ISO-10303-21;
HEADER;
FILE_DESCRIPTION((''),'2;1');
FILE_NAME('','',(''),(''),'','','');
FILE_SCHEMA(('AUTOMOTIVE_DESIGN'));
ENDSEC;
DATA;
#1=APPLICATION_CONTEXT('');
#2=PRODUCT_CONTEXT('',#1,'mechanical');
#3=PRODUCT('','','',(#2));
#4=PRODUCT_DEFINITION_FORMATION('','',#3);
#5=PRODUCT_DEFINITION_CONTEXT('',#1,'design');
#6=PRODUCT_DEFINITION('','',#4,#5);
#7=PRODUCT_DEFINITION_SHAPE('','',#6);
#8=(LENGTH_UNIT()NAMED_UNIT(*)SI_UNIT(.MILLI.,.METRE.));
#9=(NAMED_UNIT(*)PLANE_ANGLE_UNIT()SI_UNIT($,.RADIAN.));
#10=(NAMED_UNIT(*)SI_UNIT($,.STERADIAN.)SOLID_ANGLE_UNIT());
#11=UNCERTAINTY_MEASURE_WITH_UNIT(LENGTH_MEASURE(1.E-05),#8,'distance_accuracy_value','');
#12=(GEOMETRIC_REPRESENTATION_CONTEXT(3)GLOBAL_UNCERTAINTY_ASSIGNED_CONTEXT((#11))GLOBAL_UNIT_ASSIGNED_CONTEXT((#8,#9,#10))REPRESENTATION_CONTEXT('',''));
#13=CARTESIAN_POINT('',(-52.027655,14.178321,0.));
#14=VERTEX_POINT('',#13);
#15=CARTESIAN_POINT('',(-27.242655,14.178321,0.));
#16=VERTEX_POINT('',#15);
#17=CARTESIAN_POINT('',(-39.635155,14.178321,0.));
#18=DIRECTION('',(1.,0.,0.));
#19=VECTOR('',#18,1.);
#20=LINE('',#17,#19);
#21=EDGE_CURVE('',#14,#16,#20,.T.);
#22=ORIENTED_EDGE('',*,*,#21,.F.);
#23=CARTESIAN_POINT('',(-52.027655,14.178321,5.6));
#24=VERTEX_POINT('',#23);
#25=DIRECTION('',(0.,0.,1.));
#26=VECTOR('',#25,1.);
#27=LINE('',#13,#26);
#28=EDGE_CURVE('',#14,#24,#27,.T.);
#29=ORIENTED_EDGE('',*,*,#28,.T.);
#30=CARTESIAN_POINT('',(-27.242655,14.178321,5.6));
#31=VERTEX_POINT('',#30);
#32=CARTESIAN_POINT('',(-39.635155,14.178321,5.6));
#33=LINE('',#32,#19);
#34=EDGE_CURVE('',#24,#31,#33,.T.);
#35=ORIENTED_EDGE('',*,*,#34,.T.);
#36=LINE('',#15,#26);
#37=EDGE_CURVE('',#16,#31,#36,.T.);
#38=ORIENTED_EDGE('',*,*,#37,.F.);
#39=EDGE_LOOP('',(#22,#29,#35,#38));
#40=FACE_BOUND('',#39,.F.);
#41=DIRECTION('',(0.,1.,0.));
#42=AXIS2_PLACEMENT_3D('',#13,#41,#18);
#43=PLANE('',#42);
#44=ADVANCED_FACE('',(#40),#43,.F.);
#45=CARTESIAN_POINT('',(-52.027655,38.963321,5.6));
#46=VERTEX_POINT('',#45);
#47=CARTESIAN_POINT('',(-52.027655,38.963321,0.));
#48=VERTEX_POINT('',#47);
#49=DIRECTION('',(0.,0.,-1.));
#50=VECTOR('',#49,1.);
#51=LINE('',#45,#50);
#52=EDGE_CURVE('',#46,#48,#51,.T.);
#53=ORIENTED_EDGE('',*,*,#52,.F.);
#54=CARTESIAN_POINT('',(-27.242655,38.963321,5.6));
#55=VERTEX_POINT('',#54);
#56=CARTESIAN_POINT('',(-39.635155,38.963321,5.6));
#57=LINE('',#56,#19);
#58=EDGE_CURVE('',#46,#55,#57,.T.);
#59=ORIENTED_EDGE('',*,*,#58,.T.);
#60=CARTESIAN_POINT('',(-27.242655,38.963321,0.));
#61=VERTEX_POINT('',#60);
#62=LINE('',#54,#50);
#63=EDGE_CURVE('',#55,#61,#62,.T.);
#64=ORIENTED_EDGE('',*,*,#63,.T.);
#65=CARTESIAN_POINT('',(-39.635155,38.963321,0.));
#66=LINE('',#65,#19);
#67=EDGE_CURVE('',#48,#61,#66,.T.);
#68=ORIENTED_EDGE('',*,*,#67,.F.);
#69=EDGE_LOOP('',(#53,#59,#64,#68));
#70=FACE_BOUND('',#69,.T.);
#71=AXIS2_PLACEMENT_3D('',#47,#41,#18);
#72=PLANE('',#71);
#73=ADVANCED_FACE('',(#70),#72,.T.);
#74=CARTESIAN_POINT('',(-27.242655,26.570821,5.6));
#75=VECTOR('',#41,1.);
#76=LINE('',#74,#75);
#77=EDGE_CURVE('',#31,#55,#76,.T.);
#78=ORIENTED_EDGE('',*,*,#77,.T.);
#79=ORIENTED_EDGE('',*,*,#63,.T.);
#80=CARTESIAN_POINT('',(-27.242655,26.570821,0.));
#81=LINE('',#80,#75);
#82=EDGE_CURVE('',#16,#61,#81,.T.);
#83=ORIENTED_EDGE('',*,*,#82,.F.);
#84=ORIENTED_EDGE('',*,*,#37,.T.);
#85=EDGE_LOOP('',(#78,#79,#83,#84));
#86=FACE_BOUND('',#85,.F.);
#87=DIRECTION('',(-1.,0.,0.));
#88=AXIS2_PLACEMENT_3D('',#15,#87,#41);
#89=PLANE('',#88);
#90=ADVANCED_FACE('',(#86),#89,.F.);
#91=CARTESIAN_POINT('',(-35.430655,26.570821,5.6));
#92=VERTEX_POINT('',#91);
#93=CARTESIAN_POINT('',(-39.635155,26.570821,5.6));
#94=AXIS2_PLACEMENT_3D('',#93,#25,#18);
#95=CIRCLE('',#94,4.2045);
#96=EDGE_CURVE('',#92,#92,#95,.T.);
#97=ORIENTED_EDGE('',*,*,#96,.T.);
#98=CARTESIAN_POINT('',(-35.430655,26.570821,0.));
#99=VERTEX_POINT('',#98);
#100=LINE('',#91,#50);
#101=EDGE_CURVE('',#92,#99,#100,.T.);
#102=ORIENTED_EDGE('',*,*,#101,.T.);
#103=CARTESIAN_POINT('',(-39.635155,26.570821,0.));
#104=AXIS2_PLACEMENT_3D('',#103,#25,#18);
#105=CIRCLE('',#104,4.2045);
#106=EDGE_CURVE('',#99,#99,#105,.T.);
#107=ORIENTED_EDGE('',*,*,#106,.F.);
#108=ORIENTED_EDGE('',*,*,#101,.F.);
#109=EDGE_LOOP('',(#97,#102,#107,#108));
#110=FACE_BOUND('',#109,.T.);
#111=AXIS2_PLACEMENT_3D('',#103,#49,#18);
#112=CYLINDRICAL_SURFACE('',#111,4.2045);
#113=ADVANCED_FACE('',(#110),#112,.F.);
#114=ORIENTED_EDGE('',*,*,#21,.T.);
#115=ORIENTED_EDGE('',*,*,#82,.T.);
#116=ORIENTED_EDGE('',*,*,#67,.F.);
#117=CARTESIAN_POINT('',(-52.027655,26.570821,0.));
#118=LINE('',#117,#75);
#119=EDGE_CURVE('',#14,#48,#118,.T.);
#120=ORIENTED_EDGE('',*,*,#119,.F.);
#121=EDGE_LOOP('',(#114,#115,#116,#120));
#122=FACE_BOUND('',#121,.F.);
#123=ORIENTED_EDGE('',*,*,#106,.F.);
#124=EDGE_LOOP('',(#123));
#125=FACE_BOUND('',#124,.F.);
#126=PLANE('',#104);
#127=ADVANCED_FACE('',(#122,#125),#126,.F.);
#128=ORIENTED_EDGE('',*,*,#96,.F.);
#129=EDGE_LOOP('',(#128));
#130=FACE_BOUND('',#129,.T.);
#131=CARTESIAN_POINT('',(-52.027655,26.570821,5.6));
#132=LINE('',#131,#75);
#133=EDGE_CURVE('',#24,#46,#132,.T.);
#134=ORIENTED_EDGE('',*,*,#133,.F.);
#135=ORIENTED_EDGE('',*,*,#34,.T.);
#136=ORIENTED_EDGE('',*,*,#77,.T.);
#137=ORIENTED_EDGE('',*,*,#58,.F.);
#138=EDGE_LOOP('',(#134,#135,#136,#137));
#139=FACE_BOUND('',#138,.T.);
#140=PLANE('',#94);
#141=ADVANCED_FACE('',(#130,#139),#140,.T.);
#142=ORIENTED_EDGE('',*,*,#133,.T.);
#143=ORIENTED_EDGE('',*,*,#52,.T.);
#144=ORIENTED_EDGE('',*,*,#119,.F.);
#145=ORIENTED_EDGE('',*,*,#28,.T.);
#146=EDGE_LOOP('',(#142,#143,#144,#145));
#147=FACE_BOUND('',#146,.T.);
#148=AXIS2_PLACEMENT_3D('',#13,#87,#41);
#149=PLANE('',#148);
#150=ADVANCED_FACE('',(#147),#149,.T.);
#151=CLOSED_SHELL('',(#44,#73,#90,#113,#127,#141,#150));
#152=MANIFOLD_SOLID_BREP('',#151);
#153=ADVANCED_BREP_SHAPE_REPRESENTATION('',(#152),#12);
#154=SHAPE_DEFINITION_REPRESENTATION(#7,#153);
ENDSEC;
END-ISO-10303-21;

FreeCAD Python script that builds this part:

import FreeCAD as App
import Part
import Sketcher


def add_polygon(sketch, points):
    """Adds a closed chain of lines whose ends are joined by coincident constraints."""
    first, n = sketch.GeometryCount, len(points)
    for a, b in zip(points, points[1:] + points[:1]):
        sketch.addGeometry(Part.LineSegment(App.Vector(*a, 0), App.Vector(*b, 0)), False)
    for i in range(n):
        sketch.addConstraint(Sketcher.Constraint("Coincident", first + i, 2, first + (i + 1) % n, 1))

doc = App.newDocument("Part")
params = doc.addObject("Spreadsheet::Sheet", "Params")
for row, (alias, value) in enumerate([
    ("pad1_length", "5.6 mm"),
    ("pad2_length", "1.6 mm"),
], start=1):
    params.set(f"A{row}", alias)
    params.set(f"B{row}", "=" + value)
    params.setAlias(f"B{row}", alias)

body = doc.addObject("PartDesign::Body", "Body")

sketch1 = body.newObject("Sketcher::SketchObject", "Sketch")
sketch1.AttachmentSupport = (doc.getObject("XY_Plane"), [""])
sketch1.MapMode = "FlatFace"
add_polygon(sketch1, [(-52, 39), (-52, 14.2), (-27.2, 14.2), (-27.2, 39)])
sketch1.addGeometry(Part.Circle(App.Vector(-39.6, 26.6, 0), App.Vector(0, 0, 1), 4.2), False)
sketch1.addConstraint(Sketcher.Constraint("Vertical", 0))
sketch1.addConstraint(Sketcher.Constraint("Horizontal", 1))
sketch1.addConstraint(Sketcher.Constraint("Vertical", 2))
sketch1.addConstraint(Sketcher.Constraint("Horizontal", 3))
sketch1.addConstraint(Sketcher.Constraint("Equal", 3, 0))
sketch1.addConstraint(Sketcher.Constraint("Diameter", 4, 8.409))
sketch1.addConstraint(Sketcher.Constraint("DistanceX", 1, 1, 1, 2, 24.785))
sketch1.addConstraint(Sketcher.Constraint("DistanceX", 0, 2, 4, 3, 12.3925))
sketch1.addConstraint(Sketcher.Constraint("DistanceY", 0, 2, 4, 3, 12.3925))
sketch1.addConstraint(Sketcher.Constraint("DistanceY", -1, 1, 4, 3, 26.570821))
sketch1.addConstraint(Sketcher.Constraint("DistanceX", 4, 3, -1, 1, 39.635155))
pad1 = body.newObject("PartDesign::Pad", "Pad")
pad1.Profile = sketch1
pad1.setExpression("Length", "Params.pad1_length")

sketch2 = body.newObject("Sketcher::SketchObject", "Sketch001")
sketch2.AttachmentSupport = (doc.getObject("XY_Plane"), [""])
sketch2.MapMode = "FlatFace"
sketch2.AttachmentOffset = App.Placement(App.Vector(0, 0, 5.6), App.Rotation())
add_polygon(sketch2, [(-52, 39), (-52, 14.2), (-27.2, 14.2), (-27.2, 39)])
sketch2.addGeometry(Part.Circle(App.Vector(-39.6, 26.6, 0), App.Vector(0, 0, 1), 4.2), False)
sketch2.addConstraint(Sketcher.Constraint("Vertical", 0))
sketch2.addConstraint(Sketcher.Constraint("Horizontal", 1))
sketch2.addConstraint(Sketcher.Constraint("Vertical", 2))
sketch2.addConstraint(Sketcher.Constraint("Horizontal", 3))
sketch2.addConstraint(Sketcher.Constraint("Equal", 3, 0))
sketch2.addConstraint(Sketcher.Constraint("Diameter", 4, 8.409))
sketch2.addConstraint(Sketcher.Constraint("DistanceX", 1, 1, 1, 2, 24.785))
sketch2.addConstraint(Sketcher.Constraint("DistanceX", 0, 2, 4, 3, 12.3925))
sketch2.addConstraint(Sketcher.Constraint("DistanceY", 0, 2, 4, 3, 12.3925))
sketch2.addConstraint(Sketcher.Constraint("DistanceY", -1, 1, 4, 3, 26.570821))
sketch2.addConstraint(Sketcher.Constraint("DistanceX", 4, 3, -1, 1, 39.635155))
pad2 = body.newObject("PartDesign::Pad", "Pad001")
pad2.Profile = sketch2
pad2.setExpression("Length", "Params.pad2_length")
pad2.Reversed = True

doc.recompute()
